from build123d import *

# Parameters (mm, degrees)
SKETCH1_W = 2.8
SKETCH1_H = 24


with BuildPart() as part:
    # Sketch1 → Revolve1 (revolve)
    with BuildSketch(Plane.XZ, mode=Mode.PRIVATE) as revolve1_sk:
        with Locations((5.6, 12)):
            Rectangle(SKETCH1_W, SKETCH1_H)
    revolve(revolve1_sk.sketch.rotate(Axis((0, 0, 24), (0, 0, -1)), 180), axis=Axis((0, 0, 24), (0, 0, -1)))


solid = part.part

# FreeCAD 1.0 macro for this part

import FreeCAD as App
import Part
import Sketcher

V = App.Vector

doc = App.newDocument("Part")
body = doc.addObject("PartDesign::Body", "Body")

sketch1 = body.newObject("Sketcher::SketchObject", "Sketch")
sketch1.AttachmentSupport = (doc.getObject("XZ_Plane"), [""])
sketch1.MapMode = "FlatFace"
sketch1.addGeometry([
    Part.LineSegment(V(4.2, 24, 0), V(4.2, 0, 0)),
    Part.LineSegment(V(4.2, 0, 0), V(7, 0, 0)),
    Part.LineSegment(V(7, 0, 0), V(7, 24, 0)),
    Part.LineSegment(V(7, 24, 0), V(4.2, 24, 0)),
], False)
sketch1.addConstraint([
    Sketcher.Constraint("Coincident", 0, 2, 1, 1),
    Sketcher.Constraint("Coincident", 1, 2, 2, 1),
    Sketcher.Constraint("Coincident", 2, 2, 3, 1),
    Sketcher.Constraint("Coincident", 3, 2, 0, 1),
    Sketcher.Constraint("Vertical", 0),
    Sketcher.Constraint("Horizontal", 1),
    Sketcher.Constraint("Vertical", 2),
    Sketcher.Constraint("Horizontal", 3),
    Sketcher.Constraint("PointOnObject", 0, 2, -1),
    Sketcher.Constraint("DistanceY", 0, 2, 0, 1, 24.0),
    Sketcher.Constraint("DistanceX", 1, 1, 1, 2, 2.8),
    Sketcher.Constraint("DistanceX", -1, 1, 1, 2, 7.0),
])
revolution = body.newObject("PartDesign::Revolution", "Revolution")
revolution.Profile = sketch1
revolution.ReferenceAxis = (sketch1, ["V_Axis"])
revolution.Angle = 360

doc.recompute()
